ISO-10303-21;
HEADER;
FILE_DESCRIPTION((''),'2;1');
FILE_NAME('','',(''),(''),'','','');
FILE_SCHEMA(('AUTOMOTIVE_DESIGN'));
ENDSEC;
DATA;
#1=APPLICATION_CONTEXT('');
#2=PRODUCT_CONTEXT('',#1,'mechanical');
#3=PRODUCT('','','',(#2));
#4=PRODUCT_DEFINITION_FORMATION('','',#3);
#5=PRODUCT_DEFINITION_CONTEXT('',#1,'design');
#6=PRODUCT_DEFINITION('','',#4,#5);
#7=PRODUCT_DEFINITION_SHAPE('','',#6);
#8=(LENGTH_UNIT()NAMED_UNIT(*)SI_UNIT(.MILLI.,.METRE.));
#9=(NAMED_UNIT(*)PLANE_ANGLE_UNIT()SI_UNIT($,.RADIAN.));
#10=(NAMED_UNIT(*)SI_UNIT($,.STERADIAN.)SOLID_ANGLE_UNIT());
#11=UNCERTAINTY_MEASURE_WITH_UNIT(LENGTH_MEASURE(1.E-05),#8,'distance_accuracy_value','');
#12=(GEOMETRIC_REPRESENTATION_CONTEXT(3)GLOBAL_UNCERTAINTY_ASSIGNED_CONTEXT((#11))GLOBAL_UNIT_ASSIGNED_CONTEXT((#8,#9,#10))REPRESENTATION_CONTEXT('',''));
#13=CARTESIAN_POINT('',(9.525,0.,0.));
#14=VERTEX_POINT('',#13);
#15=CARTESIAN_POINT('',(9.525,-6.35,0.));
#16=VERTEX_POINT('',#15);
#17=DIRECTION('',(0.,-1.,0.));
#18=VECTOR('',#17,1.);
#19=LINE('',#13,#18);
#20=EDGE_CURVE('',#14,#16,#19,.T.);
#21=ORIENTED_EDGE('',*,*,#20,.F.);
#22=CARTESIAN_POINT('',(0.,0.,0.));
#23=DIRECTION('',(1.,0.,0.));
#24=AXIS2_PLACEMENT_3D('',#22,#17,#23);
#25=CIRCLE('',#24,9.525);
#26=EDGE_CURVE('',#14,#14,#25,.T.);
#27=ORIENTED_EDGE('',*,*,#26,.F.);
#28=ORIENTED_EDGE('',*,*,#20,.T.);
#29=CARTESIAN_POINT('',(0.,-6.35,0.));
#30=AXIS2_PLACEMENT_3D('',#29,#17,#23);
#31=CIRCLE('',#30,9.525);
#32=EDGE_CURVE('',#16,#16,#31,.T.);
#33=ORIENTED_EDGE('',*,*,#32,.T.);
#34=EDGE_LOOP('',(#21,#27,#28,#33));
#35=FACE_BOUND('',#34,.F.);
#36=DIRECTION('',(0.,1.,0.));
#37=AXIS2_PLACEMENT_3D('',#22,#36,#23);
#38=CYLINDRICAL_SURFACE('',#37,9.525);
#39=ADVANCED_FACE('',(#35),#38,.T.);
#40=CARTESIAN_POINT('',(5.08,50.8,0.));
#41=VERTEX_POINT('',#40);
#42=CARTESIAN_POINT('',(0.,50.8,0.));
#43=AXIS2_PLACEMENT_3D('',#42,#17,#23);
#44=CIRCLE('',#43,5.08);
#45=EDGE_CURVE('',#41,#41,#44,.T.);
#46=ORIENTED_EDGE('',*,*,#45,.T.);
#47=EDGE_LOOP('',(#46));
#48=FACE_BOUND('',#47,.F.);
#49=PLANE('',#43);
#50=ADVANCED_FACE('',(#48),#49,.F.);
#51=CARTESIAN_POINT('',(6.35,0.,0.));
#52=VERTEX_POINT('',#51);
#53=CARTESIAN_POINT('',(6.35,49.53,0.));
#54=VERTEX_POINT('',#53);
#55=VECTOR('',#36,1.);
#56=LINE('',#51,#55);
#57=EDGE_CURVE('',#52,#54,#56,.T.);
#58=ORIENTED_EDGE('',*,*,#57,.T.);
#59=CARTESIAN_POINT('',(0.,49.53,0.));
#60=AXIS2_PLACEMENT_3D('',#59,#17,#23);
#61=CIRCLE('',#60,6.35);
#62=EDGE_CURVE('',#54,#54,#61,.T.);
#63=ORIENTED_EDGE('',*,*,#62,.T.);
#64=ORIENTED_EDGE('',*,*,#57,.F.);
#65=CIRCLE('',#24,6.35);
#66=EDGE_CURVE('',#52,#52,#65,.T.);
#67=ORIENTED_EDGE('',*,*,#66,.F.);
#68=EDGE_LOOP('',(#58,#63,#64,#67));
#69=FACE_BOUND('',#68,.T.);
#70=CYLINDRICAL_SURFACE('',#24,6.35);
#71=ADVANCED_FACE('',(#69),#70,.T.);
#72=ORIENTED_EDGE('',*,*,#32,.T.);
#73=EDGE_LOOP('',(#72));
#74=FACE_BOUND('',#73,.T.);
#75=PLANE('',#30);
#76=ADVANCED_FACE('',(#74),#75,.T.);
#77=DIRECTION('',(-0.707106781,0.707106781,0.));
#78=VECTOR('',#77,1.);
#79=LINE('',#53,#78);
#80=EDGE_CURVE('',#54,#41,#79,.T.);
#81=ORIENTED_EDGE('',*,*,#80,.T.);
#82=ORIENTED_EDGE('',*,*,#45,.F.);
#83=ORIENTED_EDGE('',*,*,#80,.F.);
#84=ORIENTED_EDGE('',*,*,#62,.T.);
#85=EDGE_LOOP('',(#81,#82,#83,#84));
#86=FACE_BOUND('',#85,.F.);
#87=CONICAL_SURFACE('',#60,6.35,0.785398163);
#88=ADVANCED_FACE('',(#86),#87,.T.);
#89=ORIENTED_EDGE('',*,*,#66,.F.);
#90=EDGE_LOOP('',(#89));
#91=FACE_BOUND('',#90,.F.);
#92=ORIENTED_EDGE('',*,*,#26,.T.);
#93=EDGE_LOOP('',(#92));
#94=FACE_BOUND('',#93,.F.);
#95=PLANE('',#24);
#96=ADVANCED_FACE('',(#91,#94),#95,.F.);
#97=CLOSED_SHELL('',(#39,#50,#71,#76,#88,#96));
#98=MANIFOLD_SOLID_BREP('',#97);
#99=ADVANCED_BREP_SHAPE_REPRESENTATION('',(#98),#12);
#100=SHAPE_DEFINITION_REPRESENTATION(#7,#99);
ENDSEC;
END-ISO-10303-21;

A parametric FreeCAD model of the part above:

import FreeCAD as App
import Part
import Sketcher
Q = App.Units.Quantity


def edges_at(feature, points):
    """Names of the edges that pass closest to the given points."""
    edges = feature.Shape.Edges
    near = lambda p: min(range(len(edges)), key=lambda i: edges[i].distToShape(Part.Vertex(*p))[0])
    return sorted({f"Edge{near(p) + 1}" for p in points})

doc = App.newDocument("Part")
body = doc.addObject("PartDesign::Body", "Body")

# Sketch on XZ plane
sketch1 = body.newObject("Sketcher::SketchObject", "Sketch")
sketch1.AttachmentSupport = (doc.getObject("XZ_Plane"), [""])
sketch1.MapMode = "FlatFace"
sketch1.addGeometry(Part.Circle(App.Vector(0, 0, 0), App.Vector(0, 0, 1), 10), False)
sketch1.addConstraint([
    Sketcher.Constraint("Coincident", 0, 3, -1, 1),
    Sketcher.Constraint("Diameter", 0, Q("0.75 in")),
])
pad1 = body.newObject("PartDesign::Pad", "Pad")
pad1.Profile = sketch1
pad1.Length = Q("0.25 in")

# Sketch on XZ plane
sketch2 = body.newObject("Sketcher::SketchObject", "Sketch001")
sketch2.AttachmentSupport = (doc.getObject("XZ_Plane"), [""])
sketch2.MapMode = "FlatFace"
sketch2.addGeometry(Part.Circle(App.Vector(0, 0, 0), App.Vector(0, 0, 1), 6), False)
sketch2.addConstraint([
    Sketcher.Constraint("Coincident", 0, 3, -1, 1),
    Sketcher.Constraint("Diameter", 0, Q("0.5 in")),
])
pad2 = body.newObject("PartDesign::Pad", "Pad001")
pad2.Profile = sketch2
pad2.Length = Q("2 in")
pad2.Reversed = True
doc.recompute()

chamfer = body.newObject("PartDesign::Chamfer", "Chamfer")
chamfer.Base = (pad2, edges_at(pad2, [(-6.35, 50.8, 0)]))
chamfer.Size = Q("0.05 in")

doc.recompute()
